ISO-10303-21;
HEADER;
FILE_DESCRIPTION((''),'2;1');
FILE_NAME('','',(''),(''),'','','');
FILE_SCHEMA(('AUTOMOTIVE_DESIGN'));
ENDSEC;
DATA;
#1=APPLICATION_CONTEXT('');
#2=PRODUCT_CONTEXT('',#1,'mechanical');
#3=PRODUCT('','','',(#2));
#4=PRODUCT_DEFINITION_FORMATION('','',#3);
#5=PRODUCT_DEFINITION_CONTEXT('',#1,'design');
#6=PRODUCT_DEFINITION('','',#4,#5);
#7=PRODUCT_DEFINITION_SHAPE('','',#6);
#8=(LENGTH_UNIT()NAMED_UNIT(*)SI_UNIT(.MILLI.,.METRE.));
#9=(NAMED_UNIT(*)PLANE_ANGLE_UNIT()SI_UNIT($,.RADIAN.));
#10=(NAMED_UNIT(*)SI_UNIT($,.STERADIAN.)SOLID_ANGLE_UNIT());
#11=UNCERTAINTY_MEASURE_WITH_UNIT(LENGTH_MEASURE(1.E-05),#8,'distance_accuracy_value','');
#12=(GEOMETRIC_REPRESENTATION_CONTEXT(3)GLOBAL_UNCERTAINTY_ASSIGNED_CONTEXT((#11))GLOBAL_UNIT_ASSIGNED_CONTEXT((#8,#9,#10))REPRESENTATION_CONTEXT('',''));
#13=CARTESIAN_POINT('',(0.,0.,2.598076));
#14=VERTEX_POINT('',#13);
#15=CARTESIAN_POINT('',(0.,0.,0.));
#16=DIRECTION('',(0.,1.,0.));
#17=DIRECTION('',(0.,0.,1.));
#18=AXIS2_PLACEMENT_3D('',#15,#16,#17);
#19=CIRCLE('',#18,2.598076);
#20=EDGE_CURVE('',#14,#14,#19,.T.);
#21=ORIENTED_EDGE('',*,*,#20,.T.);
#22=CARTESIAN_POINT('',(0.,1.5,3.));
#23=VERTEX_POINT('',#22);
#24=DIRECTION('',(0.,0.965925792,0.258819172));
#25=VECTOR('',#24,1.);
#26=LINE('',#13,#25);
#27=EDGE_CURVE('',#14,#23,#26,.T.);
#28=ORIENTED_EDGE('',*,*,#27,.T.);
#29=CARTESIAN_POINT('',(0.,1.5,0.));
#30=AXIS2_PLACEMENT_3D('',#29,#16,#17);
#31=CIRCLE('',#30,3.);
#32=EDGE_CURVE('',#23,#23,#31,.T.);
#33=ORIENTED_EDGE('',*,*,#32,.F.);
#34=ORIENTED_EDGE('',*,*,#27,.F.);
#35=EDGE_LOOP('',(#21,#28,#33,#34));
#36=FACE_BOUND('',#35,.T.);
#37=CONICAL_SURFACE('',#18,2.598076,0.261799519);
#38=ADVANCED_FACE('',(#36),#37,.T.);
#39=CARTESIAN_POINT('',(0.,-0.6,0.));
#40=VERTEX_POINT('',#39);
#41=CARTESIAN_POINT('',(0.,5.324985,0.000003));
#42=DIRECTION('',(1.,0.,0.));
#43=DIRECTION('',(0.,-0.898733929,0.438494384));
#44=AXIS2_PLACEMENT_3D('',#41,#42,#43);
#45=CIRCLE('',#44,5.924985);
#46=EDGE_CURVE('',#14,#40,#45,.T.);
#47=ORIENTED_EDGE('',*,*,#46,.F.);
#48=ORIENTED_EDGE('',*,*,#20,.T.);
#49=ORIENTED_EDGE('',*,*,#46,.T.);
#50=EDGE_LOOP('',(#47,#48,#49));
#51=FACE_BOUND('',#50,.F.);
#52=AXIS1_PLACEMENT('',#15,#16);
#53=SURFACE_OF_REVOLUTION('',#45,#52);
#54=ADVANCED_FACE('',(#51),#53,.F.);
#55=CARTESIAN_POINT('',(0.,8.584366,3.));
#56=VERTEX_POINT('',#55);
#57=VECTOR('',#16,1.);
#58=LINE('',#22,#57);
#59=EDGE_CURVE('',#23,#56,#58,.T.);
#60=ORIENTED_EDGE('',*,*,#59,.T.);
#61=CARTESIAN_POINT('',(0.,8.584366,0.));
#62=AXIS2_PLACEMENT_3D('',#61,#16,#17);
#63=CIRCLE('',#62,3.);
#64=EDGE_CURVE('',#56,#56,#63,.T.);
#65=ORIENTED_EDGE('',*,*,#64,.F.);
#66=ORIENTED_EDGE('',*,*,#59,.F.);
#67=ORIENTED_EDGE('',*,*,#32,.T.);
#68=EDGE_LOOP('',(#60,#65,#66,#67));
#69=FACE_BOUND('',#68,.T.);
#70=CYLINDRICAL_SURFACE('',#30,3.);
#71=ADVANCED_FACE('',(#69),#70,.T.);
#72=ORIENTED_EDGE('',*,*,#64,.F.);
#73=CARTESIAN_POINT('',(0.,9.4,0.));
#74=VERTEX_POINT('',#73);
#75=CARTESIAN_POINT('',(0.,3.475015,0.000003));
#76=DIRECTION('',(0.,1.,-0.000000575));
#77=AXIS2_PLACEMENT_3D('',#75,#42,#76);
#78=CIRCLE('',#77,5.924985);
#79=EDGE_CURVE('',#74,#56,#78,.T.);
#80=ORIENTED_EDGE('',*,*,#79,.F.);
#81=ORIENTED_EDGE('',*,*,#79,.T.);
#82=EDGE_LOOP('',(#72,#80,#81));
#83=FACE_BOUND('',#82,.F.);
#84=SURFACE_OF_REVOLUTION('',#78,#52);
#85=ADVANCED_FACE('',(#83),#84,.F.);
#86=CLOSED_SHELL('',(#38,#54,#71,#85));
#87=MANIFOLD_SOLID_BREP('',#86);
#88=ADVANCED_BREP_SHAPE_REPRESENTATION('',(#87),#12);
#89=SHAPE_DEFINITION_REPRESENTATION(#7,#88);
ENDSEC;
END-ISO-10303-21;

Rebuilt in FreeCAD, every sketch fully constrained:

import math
import FreeCAD as App
import Part
import Sketcher

V = App.Vector
Q = App.Units.Quantity

doc = App.newDocument("Part")
body = doc.addObject("PartDesign::Body", "Body")

# Sketch on YZ plane
sketch1 = body.newObject("Sketcher::SketchObject", "Sketch")
sketch1.AttachmentSupport = (doc.getObject("YZ_Plane"), [""])
sketch1.MapMode = "FlatFace"
sketch1.addGeometry([
    Part.ArcOfCircle(Part.Circle(V(5.3, 0, 0), V(0, 0, 1), 5.9), math.radians(154), math.radians(180)),  # 0
    Part.LineSegment(V(-0.6, 0, 0), V(9.4, 0, 0)),  # 1
    Part.ArcOfCircle(Part.Circle(V(3.5, 0, 0), V(0, 0, 1), 5.9), math.radians(0), math.radians(30)),  # 2
    Part.LineSegment(V(8.6, 3, 0), V(1.5, 3, 0)),  # 3
    Part.LineSegment(V(1.5, 3, 0), V(0, 2.6, 0)),  # 4
], False)
sketch1.addConstraint([
    Sketcher.Constraint("Coincident", 0, 2, 1, 1),
    Sketcher.Constraint("Coincident", 1, 2, 2, 1),
    Sketcher.Constraint("Coincident", 2, 2, 3, 1),
    Sketcher.Constraint("Coincident", 3, 2, 4, 1),
    Sketcher.Constraint("Coincident", 4, 2, 0, 1),
    Sketcher.Constraint("Horizontal", 1),
    Sketcher.Constraint("Horizontal", 3),
    Sketcher.Constraint("Equal", 0, 2),
    Sketcher.Constraint("PointOnObject", 0, 2, -1),
    Sketcher.Constraint("PointOnObject", 4, 2, -2),
    Sketcher.Constraint("Horizontal", 0, 3, 2, 3),
    Sketcher.Constraint("DistanceX", 1, 1, 1, 2, Q("10 mm")),
    Sketcher.Constraint("Angle", 4, Q("-164.999992 deg")),
    Sketcher.Constraint("DistanceY", -1, 1, 2, 2, Q("3 mm")),
    Sketcher.Constraint("DistanceX", 0, 2, -1, 1, Q("0.6 mm")),
    Sketcher.Constraint("DistanceX", -1, 1, 3, 2, Q("1.5 mm")),
    Sketcher.Constraint("Radius", 0, Q("5.924985 mm")),
])
revolution = body.newObject("PartDesign::Revolution", "Revolution")
revolution.Profile = sketch1
revolution.ReferenceAxis = (sketch1, ["H_Axis"])
revolution.Angle = 360

doc.recompute()
